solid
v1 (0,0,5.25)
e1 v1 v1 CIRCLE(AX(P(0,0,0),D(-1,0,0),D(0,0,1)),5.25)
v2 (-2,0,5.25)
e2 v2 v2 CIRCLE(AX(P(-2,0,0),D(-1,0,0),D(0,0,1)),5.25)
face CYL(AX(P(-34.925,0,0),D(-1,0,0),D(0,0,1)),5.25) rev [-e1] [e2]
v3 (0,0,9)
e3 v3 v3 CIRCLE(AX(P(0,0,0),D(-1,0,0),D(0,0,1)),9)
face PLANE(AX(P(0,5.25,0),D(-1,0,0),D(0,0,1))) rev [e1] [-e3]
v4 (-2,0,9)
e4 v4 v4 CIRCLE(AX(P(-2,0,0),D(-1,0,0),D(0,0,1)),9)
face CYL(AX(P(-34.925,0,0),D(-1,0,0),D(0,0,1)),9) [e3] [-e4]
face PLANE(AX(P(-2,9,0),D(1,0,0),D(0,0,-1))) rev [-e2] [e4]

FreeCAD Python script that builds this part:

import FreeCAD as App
import Part
import Sketcher
from FreeCAD import Vector
Q = App.Units.Quantity

doc = App.newDocument("Part")
body = doc.addObject("PartDesign::Body", "Body")

# Sketch on XY plane
sketch1 = body.newObject("Sketcher::SketchObject", "Sketch")
sketch1.AttachmentSupport = (doc.getObject("XY_Plane"), [""])
sketch1.MapMode = "FlatFace"
sketch1.addGeometry(Part.LineSegment(Vector(-2, 9, 0), Vector(-2, 5.2, 0)), False)
sketch1.addGeometry(Part.LineSegment(Vector(-2, 5.2, 0), Vector(0, 5.2, 0)), False)
sketch1.addGeometry(Part.LineSegment(Vector(0, 5.2, 0), Vector(0, 9, 0)), False)
sketch1.addGeometry(Part.LineSegment(Vector(0, 9, 0), Vector(-2, 9, 0)), False)
sketch1.addConstraint(Sketcher.Constraint("Coincident", 0, 2, 1, 1))
sketch1.addConstraint(Sketcher.Constraint("Coincident", 1, 2, 2, 1))
sketch1.addConstraint(Sketcher.Constraint("Coincident", 2, 2, 3, 1))
sketch1.addConstraint(Sketcher.Constraint("Coincident", 3, 2, 0, 1))
sketch1.addConstraint(Sketcher.Constraint("Vertical", 0))
sketch1.addConstraint(Sketcher.Constraint("Horizontal", 1))
sketch1.addConstraint(Sketcher.Constraint("Vertical", 2))
sketch1.addConstraint(Sketcher.Constraint("Horizontal", 3))
sketch1.addConstraint(Sketcher.Constraint("PointOnObject", 1, 2, -2))
sketch1.addConstraint(Sketcher.Constraint("DistanceX", 1, 1, 1, 2, Q("2 mm")))
sketch1.addConstraint(Sketcher.Constraint("DistanceY", -1, 1, 2, 2, Q("9 mm")))
sketch1.addConstraint(Sketcher.Constraint("DistanceY", 0, 2, 0, 1, Q("3.75 mm")))
revolution = body.newObject("PartDesign::Revolution", "Revolution")
revolution.Profile = sketch1
revolution.ReferenceAxis = (sketch1, ["H_Axis"])
revolution.Angle = 360

doc.recompute()
